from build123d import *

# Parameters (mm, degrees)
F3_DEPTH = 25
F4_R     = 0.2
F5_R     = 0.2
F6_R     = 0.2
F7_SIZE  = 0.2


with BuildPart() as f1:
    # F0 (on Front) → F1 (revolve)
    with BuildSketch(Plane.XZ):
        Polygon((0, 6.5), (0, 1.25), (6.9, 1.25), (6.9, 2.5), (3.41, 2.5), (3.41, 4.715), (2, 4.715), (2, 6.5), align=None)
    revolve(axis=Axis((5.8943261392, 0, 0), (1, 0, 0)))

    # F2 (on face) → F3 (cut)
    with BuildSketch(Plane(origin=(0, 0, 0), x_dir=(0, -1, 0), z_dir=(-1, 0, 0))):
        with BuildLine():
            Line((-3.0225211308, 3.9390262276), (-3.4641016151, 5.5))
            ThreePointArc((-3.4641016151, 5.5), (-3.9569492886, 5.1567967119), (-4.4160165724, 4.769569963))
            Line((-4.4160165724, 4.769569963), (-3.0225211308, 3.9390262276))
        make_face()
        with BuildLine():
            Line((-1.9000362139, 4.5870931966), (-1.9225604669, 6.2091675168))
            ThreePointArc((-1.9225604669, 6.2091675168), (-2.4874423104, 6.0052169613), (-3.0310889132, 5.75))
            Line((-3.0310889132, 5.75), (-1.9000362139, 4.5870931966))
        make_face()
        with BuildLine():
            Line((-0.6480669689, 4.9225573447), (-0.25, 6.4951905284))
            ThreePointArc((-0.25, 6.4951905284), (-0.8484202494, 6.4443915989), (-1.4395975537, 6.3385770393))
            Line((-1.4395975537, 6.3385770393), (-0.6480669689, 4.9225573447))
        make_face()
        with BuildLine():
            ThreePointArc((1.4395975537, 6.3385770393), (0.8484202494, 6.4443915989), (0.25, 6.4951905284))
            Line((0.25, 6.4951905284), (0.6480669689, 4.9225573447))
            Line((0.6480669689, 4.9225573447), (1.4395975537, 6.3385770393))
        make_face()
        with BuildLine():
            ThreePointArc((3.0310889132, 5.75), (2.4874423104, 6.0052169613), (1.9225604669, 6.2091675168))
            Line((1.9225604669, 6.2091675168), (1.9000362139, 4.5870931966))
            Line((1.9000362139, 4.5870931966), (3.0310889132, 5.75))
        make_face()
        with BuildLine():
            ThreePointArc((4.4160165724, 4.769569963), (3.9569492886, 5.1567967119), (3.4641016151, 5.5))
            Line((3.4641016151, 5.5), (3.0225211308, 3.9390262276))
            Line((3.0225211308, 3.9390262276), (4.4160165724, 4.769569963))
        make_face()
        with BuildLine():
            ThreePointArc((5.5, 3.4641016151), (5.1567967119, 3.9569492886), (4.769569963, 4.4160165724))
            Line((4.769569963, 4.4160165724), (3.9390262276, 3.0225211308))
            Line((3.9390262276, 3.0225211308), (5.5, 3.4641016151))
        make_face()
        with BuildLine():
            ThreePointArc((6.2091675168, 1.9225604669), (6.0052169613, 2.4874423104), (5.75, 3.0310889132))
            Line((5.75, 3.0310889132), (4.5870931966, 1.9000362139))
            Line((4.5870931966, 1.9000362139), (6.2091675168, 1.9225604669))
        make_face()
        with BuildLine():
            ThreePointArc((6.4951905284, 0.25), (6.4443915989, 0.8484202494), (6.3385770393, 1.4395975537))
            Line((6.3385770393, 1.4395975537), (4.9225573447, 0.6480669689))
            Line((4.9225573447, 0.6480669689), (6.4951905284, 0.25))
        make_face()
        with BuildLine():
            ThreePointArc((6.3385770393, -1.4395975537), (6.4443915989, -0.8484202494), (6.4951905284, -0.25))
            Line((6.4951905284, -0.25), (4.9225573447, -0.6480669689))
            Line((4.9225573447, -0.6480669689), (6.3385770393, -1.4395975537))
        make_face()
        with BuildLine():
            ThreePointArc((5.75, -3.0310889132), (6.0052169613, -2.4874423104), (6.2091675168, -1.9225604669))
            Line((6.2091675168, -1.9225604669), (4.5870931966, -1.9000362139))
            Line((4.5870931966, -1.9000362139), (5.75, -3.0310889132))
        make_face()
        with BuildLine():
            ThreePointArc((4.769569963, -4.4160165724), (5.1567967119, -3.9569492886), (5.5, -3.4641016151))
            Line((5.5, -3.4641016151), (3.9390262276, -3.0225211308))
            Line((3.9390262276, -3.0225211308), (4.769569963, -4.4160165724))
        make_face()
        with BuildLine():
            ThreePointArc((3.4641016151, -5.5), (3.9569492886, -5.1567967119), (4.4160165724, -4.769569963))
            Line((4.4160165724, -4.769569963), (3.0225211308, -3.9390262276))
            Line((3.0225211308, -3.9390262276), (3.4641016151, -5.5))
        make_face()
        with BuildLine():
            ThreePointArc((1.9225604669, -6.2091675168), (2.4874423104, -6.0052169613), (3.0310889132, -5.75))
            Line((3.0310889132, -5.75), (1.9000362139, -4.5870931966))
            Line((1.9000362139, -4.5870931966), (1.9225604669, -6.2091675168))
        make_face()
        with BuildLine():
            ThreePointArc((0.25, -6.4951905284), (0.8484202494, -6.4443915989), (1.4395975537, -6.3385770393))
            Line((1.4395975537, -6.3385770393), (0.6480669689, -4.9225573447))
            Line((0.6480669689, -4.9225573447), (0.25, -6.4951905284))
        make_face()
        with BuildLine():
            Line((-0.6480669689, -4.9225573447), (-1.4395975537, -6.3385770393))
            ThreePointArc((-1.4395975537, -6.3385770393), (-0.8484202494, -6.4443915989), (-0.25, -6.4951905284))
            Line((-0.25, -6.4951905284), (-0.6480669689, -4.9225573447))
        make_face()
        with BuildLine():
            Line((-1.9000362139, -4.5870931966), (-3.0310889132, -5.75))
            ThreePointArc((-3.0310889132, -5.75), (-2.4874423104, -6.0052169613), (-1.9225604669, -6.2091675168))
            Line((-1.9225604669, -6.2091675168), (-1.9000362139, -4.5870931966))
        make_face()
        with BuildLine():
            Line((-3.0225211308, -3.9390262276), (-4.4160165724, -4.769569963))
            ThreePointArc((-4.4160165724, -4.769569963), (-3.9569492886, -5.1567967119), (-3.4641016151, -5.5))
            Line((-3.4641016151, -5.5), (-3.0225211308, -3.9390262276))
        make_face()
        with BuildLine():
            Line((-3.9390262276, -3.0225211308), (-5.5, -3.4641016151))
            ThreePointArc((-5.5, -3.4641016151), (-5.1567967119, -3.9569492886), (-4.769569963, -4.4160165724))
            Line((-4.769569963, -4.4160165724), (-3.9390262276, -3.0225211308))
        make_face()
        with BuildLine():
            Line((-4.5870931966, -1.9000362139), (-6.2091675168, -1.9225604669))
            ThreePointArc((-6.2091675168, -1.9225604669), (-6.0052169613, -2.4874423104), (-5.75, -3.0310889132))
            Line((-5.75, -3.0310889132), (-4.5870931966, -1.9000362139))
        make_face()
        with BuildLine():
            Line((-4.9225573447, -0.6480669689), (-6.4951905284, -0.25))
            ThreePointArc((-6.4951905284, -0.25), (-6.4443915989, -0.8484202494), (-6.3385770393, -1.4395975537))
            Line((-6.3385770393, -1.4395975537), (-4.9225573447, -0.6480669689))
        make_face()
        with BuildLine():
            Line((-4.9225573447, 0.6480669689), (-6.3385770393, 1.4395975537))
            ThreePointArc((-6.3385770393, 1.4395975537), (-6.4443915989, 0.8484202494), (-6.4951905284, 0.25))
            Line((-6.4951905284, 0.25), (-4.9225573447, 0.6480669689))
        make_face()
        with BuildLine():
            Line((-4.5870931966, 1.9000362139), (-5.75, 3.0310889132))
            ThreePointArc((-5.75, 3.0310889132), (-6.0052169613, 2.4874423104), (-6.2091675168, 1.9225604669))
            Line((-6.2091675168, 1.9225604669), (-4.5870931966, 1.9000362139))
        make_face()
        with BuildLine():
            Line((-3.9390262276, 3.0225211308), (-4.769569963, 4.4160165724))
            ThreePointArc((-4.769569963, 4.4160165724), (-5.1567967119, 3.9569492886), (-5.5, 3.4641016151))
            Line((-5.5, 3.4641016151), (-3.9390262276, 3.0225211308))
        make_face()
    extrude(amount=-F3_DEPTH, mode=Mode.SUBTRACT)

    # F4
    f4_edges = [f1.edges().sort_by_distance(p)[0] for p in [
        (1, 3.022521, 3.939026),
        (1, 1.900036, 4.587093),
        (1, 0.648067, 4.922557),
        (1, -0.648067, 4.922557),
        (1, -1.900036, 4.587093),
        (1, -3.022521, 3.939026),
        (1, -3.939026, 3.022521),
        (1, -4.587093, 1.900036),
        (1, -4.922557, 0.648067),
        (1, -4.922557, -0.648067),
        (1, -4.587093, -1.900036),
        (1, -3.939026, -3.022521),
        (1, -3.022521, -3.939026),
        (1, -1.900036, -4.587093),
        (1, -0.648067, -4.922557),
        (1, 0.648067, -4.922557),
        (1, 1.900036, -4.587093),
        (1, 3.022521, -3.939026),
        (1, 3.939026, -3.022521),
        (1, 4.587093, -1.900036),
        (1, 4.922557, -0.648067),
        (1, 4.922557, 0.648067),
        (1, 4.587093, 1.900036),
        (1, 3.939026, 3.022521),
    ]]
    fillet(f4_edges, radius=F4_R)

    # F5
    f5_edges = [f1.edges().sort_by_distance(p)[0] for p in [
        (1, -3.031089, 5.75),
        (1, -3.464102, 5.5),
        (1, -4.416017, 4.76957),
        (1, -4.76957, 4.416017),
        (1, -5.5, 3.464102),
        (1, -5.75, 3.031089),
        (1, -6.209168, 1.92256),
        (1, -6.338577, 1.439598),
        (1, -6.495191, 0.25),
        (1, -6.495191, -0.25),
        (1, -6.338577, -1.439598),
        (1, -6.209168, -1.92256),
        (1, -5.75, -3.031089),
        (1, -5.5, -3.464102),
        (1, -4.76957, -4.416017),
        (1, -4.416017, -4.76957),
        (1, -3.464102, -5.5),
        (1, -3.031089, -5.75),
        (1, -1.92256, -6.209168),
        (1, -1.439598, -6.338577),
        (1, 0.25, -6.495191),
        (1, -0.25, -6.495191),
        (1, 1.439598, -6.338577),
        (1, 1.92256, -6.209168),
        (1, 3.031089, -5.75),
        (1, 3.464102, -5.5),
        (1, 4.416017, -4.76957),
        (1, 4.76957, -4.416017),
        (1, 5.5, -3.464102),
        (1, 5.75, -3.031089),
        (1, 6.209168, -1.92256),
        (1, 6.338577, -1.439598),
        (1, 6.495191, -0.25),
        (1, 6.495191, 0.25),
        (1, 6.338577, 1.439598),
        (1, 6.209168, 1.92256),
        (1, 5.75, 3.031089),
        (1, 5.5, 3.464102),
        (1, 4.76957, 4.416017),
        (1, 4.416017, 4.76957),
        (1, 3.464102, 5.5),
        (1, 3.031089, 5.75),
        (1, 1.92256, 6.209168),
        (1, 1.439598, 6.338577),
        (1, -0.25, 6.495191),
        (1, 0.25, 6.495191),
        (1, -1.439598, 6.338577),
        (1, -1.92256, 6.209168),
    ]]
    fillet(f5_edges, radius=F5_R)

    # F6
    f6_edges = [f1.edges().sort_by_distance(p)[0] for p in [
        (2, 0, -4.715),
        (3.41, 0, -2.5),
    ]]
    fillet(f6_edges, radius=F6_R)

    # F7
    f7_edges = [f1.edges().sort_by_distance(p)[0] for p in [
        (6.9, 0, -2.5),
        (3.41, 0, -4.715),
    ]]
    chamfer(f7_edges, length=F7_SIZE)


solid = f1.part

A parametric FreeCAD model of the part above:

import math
import FreeCAD as App
import Part
import Sketcher
from FreeCAD import Vector


def edges_at(feature, points):
    """Names of the edges that pass closest to the given points."""
    edges = feature.Shape.Edges
    near = lambda p: min(range(len(edges)), key=lambda i: edges[i].distToShape(Part.Vertex(*p))[0])
    return sorted({f"Edge{near(p) + 1}" for p in points})


def add_polygon(sketch, points):
    """Adds a closed chain of lines whose ends are joined by coincident constraints."""
    first, n = sketch.GeometryCount, len(points)
    for a, b in zip(points, points[1:] + points[:1]):
        sketch.addGeometry(Part.LineSegment(App.Vector(*a, 0), App.Vector(*b, 0)), False)
    for i in range(n):
        sketch.addConstraint(Sketcher.Constraint("Coincident", first + i, 2, first + (i + 1) % n, 1))

doc = App.newDocument("Part")
body = doc.addObject("PartDesign::Body", "Body")

# Sketch on XZ plane
sketch1 = body.newObject("Sketcher::SketchObject", "Sketch")
sketch1.AttachmentSupport = (doc.getObject("XZ_Plane"), [""])
sketch1.MapMode = "FlatFace"
add_polygon(sketch1, [(0, 6.5), (0, 1.25), (6.9, 1.25), (6.9, 2.5), (3.41, 2.5), (3.41, 4.715), (2, 4.715), (2, 6.5)])  # lines 0-7
sketch1.addConstraint([
    Sketcher.Constraint("Vertical", 0),
    Sketcher.Constraint("Horizontal", 1),
    Sketcher.Constraint("Vertical", 2),
    Sketcher.Constraint("Horizontal", 3),
    Sketcher.Constraint("Vertical", 4),
    Sketcher.Constraint("Horizontal", 5),
    Sketcher.Constraint("Vertical", 6),
    Sketcher.Constraint("Horizontal", 7),
    Sketcher.Constraint("PointOnObject", 0, 2, -2),
    Sketcher.Constraint("DistanceX", 7, 2, 7, 1, 2.0),
    Sketcher.Constraint("DistanceX", 1, 1, 1, 2, 6.9),
    Sketcher.Constraint("DistanceY", 3, 2, 6, 2, 4.0),
    Sketcher.Constraint("DistanceX", 3, 2, 3, 1, 3.49),
    Sketcher.Constraint("DistanceY", 0, 2, 0, 1, 5.25),
    Sketcher.Constraint("DistanceY", -1, 1, 2, 2, 2.5),
    Sketcher.Constraint("DistanceY", 4, 1, 4, 2, 2.215),
])
revolution = body.newObject("PartDesign::Revolution", "Revolution")
revolution.Profile = sketch1
revolution.ReferenceAxis = (sketch1, ["H_Axis"])
revolution.Angle = 360

# Sketch on YZ plane
sketch2 = body.newObject("Sketcher::SketchObject", "Sketch001")
sketch2.AttachmentSupport = (doc.getObject("YZ_Plane"), [""])
sketch2.MapMode = "FlatFace"
sketch2.addGeometry([
    Part.LineSegment(Vector(3.022521, 3.939026, 0), Vector(3.464102, 5.5, 0)),  # 0
    Part.ArcOfCircle(Part.Circle(Vector(0, 0, 0), Vector(0, 0, 1), 6.5), math.radians(47.204227), math.radians(57.795773)),  # 1
    Part.LineSegment(Vector(4.416017, 4.76957, 0), Vector(3.022521, 3.939026, 0)),  # 2
    Part.LineSegment(Vector(1.900036, 4.587093, 0), Vector(1.92256, 6.209168, 0)),  # 3
    Part.ArcOfCircle(Part.Circle(Vector(0, 0, 0), Vector(0, 0, 1), 6.5), math.radians(62.204228), math.radians(72.795772)),  # 4
    Part.LineSegment(Vector(3.031089, 5.75, 0), Vector(1.900036, 4.587093, 0)),  # 5
    Part.LineSegment(Vector(0.648067, 4.922557, 0), Vector(0.25, 6.495191, 0)),  # 6
    Part.ArcOfCircle(Part.Circle(Vector(0, 0, 0), Vector(0, 0, 1), 6.5), math.radians(77.204228), math.radians(87.795772)),  # 7
    Part.LineSegment(Vector(1.439598, 6.338577, 0), Vector(0.648067, 4.922557, 0)),  # 8
    Part.ArcOfCircle(Part.Circle(Vector(0, 0, 0), Vector(0, 0, 1), 6.5), math.radians(92.204228), math.radians(102.795772)),  # 9
    Part.LineSegment(Vector(-0.25, 6.495191, 0), Vector(-0.648067, 4.922557, 0)),  # 10
    Part.LineSegment(Vector(-0.648067, 4.922557, 0), Vector(-1.439598, 6.338577, 0)),  # 11
    Part.ArcOfCircle(Part.Circle(Vector(0, 0, 0), Vector(0, 0, 1), 6.5), math.radians(107.204228), math.radians(117.795772)),  # 12
    Part.LineSegment(Vector(-1.92256, 6.209168, 0), Vector(-1.900036, 4.587093, 0)),  # 13
    Part.LineSegment(Vector(-1.900036, 4.587093, 0), Vector(-3.031089, 5.75, 0)),  # 14
    Part.ArcOfCircle(Part.Circle(Vector(0, 0, 0), Vector(0, 0, 1), 6.5), math.radians(122.204227), math.radians(132.795773)),  # 15
    Part.LineSegment(Vector(-3.464102, 5.5, 0), Vector(-3.022521, 3.939026, 0)),  # 16
    Part.LineSegment(Vector(-3.022521, 3.939026, 0), Vector(-4.416017, 4.76957, 0)),  # 17
    Part.ArcOfCircle(Part.Circle(Vector(0, 0, 0), Vector(0, 0, 1), 6.5), math.radians(137.204227), math.radians(147.795773)),  # 18
    Part.LineSegment(Vector(-4.76957, 4.416017, 0), Vector(-3.939026, 3.022521, 0)),  # 19
    Part.LineSegment(Vector(-3.939026, 3.022521, 0), Vector(-5.5, 3.464102, 0)),  # 20
    Part.ArcOfCircle(Part.Circle(Vector(0, 0, 0), Vector(0, 0, 1), 6.5), math.radians(152.204228), math.radians(162.795772)),  # 21
    Part.LineSegment(Vector(-5.75, 3.031089, 0), Vector(-4.587093, 1.900036, 0)),  # 22
    Part.LineSegment(Vector(-4.587093, 1.900036, 0), Vector(-6.209168, 1.92256, 0)),  # 23
    Part.ArcOfCircle(Part.Circle(Vector(0, 0, 0), Vector(0, 0, 1), 6.5), math.radians(167.204228), math.radians(177.795772)),  # 24
    Part.LineSegment(Vector(-6.338577, 1.439598, 0), Vector(-4.922557, 0.648067, 0)),  # 25
    Part.LineSegment(Vector(-4.922557, 0.648067, 0), Vector(-6.495191, 0.25, 0)),  # 26
    Part.ArcOfCircle(Part.Circle(Vector(0, 0, 0), Vector(0, 0, 1), 6.5), math.radians(-177.795772), math.radians(-167.204228)),  # 27
    Part.LineSegment(Vector(-6.495191, -0.25, 0), Vector(-4.922557, -0.648067, 0)),  # 28
    Part.LineSegment(Vector(-4.922557, -0.648067, 0), Vector(-6.338577, -1.439598, 0)),  # 29
    Part.ArcOfCircle(Part.Circle(Vector(0, 0, 0), Vector(0, 0, 1), 6.5), math.radians(-162.795772), math.radians(-152.204228)),  # 30
    Part.LineSegment(Vector(-6.209168, -1.92256, 0), Vector(-4.587093, -1.900036, 0)),  # 31
    Part.LineSegment(Vector(-4.587093, -1.900036, 0), Vector(-5.75, -3.031089, 0)),  # 32
    Part.ArcOfCircle(Part.Circle(Vector(0, 0, 0), Vector(0, 0, 1), 6.5), math.radians(-147.795773), math.radians(-137.204227)),  # 33
    Part.LineSegment(Vector(-5.5, -3.464102, 0), Vector(-3.939026, -3.022521, 0)),  # 34
    Part.LineSegment(Vector(-3.939026, -3.022521, 0), Vector(-4.76957, -4.416017, 0)),  # 35
    Part.ArcOfCircle(Part.Circle(Vector(0, 0, 0), Vector(0, 0, 1), 6.5), math.radians(-132.795773), math.radians(-122.204227)),  # 36
    Part.LineSegment(Vector(-4.416017, -4.76957, 0), Vector(-3.022521, -3.939026, 0)),  # 37
    Part.LineSegment(Vector(-3.022521, -3.939026, 0), Vector(-3.464102, -5.5, 0)),  # 38
    Part.ArcOfCircle(Part.Circle(Vector(0, 0, 0), Vector(0, 0, 1), 6.5), math.radians(-117.795772), math.radians(-107.204228)),  # 39
    Part.LineSegment(Vector(-3.031089, -5.75, 0), Vector(-1.900036, -4.587093, 0)),  # 40
    Part.LineSegment(Vector(-1.900036, -4.587093, 0), Vector(-1.92256, -6.209168, 0)),  # 41
    Part.ArcOfCircle(Part.Circle(Vector(0, 0, 0), Vector(0, 0, 1), 6.5), math.radians(-102.795772), math.radians(-92.204228)),  # 42
    Part.LineSegment(Vector(-1.439598, -6.338577, 0), Vector(-0.648067, -4.922557, 0)),  # 43
    Part.LineSegment(Vector(-0.648067, -4.922557, 0), Vector(-0.25, -6.495191, 0)),  # 44
    Part.LineSegment(Vector(0.648067, -4.922557, 0), Vector(1.439598, -6.338577, 0)),  # 45
    Part.ArcOfCircle(Part.Circle(Vector(0, 0, 0), Vector(0, 0, 1), 6.5), math.radians(-87.795772), math.radians(-77.204228)),  # 46
    Part.LineSegment(Vector(0.25, -6.495191, 0), Vector(0.648067, -4.922557, 0)),  # 47
    Part.LineSegment(Vector(1.900036, -4.587093, 0), Vector(3.031089, -5.75, 0)),  # 48
    Part.ArcOfCircle(Part.Circle(Vector(0, 0, 0), Vector(0, 0, 1), 6.5), math.radians(-72.795772), math.radians(-62.204228)),  # 49
    Part.LineSegment(Vector(1.92256, -6.209168, 0), Vector(1.900036, -4.587093, 0)),  # 50
    Part.LineSegment(Vector(3.022521, -3.939026, 0), Vector(4.416017, -4.76957, 0)),  # 51
    Part.ArcOfCircle(Part.Circle(Vector(0, 0, 0), Vector(0, 0, 1), 6.5), math.radians(-57.795773), math.radians(-47.204227)),  # 52
    Part.LineSegment(Vector(3.464102, -5.5, 0), Vector(3.022521, -3.939026, 0)),  # 53
    Part.LineSegment(Vector(3.939026, -3.022521, 0), Vector(5.5, -3.464102, 0)),  # 54
    Part.ArcOfCircle(Part.Circle(Vector(0, 0, 0), Vector(0, 0, 1), 6.5), math.radians(-42.795773), math.radians(-32.204227)),  # 55
    Part.LineSegment(Vector(4.76957, -4.416017, 0), Vector(3.939026, -3.022521, 0)),  # 56
    Part.LineSegment(Vector(4.587093, -1.900036, 0), Vector(6.209168, -1.92256, 0)),  # 57
    Part.ArcOfCircle(Part.Circle(Vector(0, 0, 0), Vector(0, 0, 1), 6.5), math.radians(-27.795772), math.radians(-17.204228)),  # 58
    Part.LineSegment(Vector(5.75, -3.031089, 0), Vector(4.587093, -1.900036, 0)),  # 59
    Part.LineSegment(Vector(4.922557, -0.648067, 0), Vector(6.495191, -0.25, 0)),  # 60
    Part.ArcOfCircle(Part.Circle(Vector(0, 0, 0), Vector(0, 0, 1), 6.5), math.radians(-12.795772), math.radians(-2.204228)),  # 61
    Part.LineSegment(Vector(6.338577, -1.439598, 0), Vector(4.922557, -0.648067, 0)),  # 62
    Part.LineSegment(Vector(4.922557, 0.648067, 0), Vector(6.338577, 1.439598, 0)),  # 63
    Part.ArcOfCircle(Part.Circle(Vector(0, 0, 0), Vector(0, 0, 1), 6.5), math.radians(2.204228), math.radians(12.795772)),  # 64
    Part.LineSegment(Vector(6.495191, 0.25, 0), Vector(4.922557, 0.648067, 0)),  # 65
    Part.LineSegment(Vector(4.587093, 1.900036, 0), Vector(5.75, 3.031089, 0)),  # 66
    Part.ArcOfCircle(Part.Circle(Vector(0, 0, 0), Vector(0, 0, 1), 6.5), math.radians(17.204228), math.radians(27.795772)),  # 67
    Part.LineSegment(Vector(6.209168, 1.92256, 0), Vector(4.587093, 1.900036, 0)),  # 68
    Part.LineSegment(Vector(3.939026, 3.022521, 0), Vector(4.76957, 4.416017, 0)),  # 69
    Part.ArcOfCircle(Part.Circle(Vector(0, 0, 0), Vector(0, 0, 1), 6.5), math.radians(32.204227), math.radians(42.795773)),  # 70
    Part.LineSegment(Vector(5.5, 3.464102, 0), Vector(3.939026, 3.022521, 0)),  # 71
], False)
sketch2.addConstraint([
    Sketcher.Constraint("Coincident", 0, 2, 1, 2),
    Sketcher.Constraint("Coincident", 1, 1, 2, 1),
    Sketcher.Constraint("Coincident", 2, 2, 0, 1),
    Sketcher.Constraint("Coincident", 3, 2, 4, 2),
    Sketcher.Constraint("Coincident", 4, 1, 5, 1),
    Sketcher.Constraint("Coincident", 5, 2, 3, 1),
    Sketcher.Constraint("Coincident", 6, 2, 7, 2),
    Sketcher.Constraint("Coincident", 7, 1, 8, 1),
    Sketcher.Constraint("Coincident", 8, 2, 6, 1),
    Sketcher.Constraint("Coincident", 9, 1, 10, 1),
    Sketcher.Constraint("Coincident", 10, 2, 11, 1),
    Sketcher.Constraint("Coincident", 11, 2, 9, 2),
    Sketcher.Constraint("Coincident", 12, 1, 13, 1),
    Sketcher.Constraint("Coincident", 13, 2, 14, 1),
    Sketcher.Constraint("Coincident", 14, 2, 12, 2),
    Sketcher.Constraint("Coincident", 15, 1, 16, 1),
    Sketcher.Constraint("Coincident", 16, 2, 17, 1),
    Sketcher.Constraint("Coincident", 17, 2, 15, 2),
    Sketcher.Constraint("Coincident", 18, 1, 19, 1),
    Sketcher.Constraint("Coincident", 19, 2, 20, 1),
    Sketcher.Constraint("Coincident", 20, 2, 18, 2),
    Sketcher.Constraint("Coincident", 21, 1, 22, 1),
    Sketcher.Constraint("Coincident", 22, 2, 23, 1),
    Sketcher.Constraint("Coincident", 23, 2, 21, 2),
    Sketcher.Constraint("Coincident", 24, 1, 25, 1),
    Sketcher.Constraint("Coincident", 25, 2, 26, 1),
    Sketcher.Constraint("Coincident", 26, 2, 24, 2),
    Sketcher.Constraint("Coincident", 27, 1, 28, 1),
    Sketcher.Constraint("Coincident", 28, 2, 29, 1),
    Sketcher.Constraint("Coincident", 29, 2, 27, 2),
    Sketcher.Constraint("Coincident", 30, 1, 31, 1),
    Sketcher.Constraint("Coincident", 31, 2, 32, 1),
    Sketcher.Constraint("Coincident", 32, 2, 30, 2),
    Sketcher.Constraint("Coincident", 33, 1, 34, 1),
    Sketcher.Constraint("Coincident", 34, 2, 35, 1),
    Sketcher.Constraint("Coincident", 35, 2, 33, 2),
    Sketcher.Constraint("Coincident", 36, 1, 37, 1),
    Sketcher.Constraint("Coincident", 37, 2, 38, 1),
    Sketcher.Constraint("Coincident", 38, 2, 36, 2),
    Sketcher.Constraint("Coincident", 39, 1, 40, 1),
    Sketcher.Constraint("Coincident", 40, 2, 41, 1),
    Sketcher.Constraint("Coincident", 41, 2, 39, 2),
    Sketcher.Constraint("Coincident", 42, 1, 43, 1),
    Sketcher.Constraint("Coincident", 43, 2, 44, 1),
    Sketcher.Constraint("Coincident", 44, 2, 42, 2),
    Sketcher.Constraint("Coincident", 45, 2, 46, 2),
    Sketcher.Constraint("Coincident", 46, 1, 47, 1),
    Sketcher.Constraint("Coincident", 47, 2, 45, 1),
    Sketcher.Constraint("Coincident", 48, 2, 49, 2),
    Sketcher.Constraint("Coincident", 49, 1, 50, 1),
    Sketcher.Constraint("Coincident", 50, 2, 48, 1),
    Sketcher.Constraint("Coincident", 51, 2, 52, 2),
    Sketcher.Constraint("Coincident", 52, 1, 53, 1),
    Sketcher.Constraint("Coincident", 53, 2, 51, 1),
    Sketcher.Constraint("Coincident", 54, 2, 55, 2),
    Sketcher.Constraint("Coincident", 55, 1, 56, 1),
    Sketcher.Constraint("Coincident", 56, 2, 54, 1),
    Sketcher.Constraint("Coincident", 57, 2, 58, 2),
    Sketcher.Constraint("Coincident", 58, 1, 59, 1),
    Sketcher.Constraint("Coincident", 59, 2, 57, 1),
    Sketcher.Constraint("Coincident", 60, 2, 61, 2),
    Sketcher.Constraint("Coincident", 61, 1, 62, 1),
    Sketcher.Constraint("Coincident", 62, 2, 60, 1),
    Sketcher.Constraint("Coincident", 63, 2, 64, 2),
    Sketcher.Constraint("Coincident", 64, 1, 65, 1),
    Sketcher.Constraint("Coincident", 65, 2, 63, 1),
    Sketcher.Constraint("Coincident", 66, 2, 67, 2),
    Sketcher.Constraint("Coincident", 67, 1, 68, 1),
    Sketcher.Constraint("Coincident", 68, 2, 66, 1),
    Sketcher.Constraint("Coincident", 69, 2, 70, 2),
    Sketcher.Constraint("Coincident", 70, 1, 71, 1),
    Sketcher.Constraint("Coincident", 71, 2, 69, 1),
    Sketcher.Constraint("Coincident", 1, 3, -1, 1),
    Sketcher.Constraint("Coincident", 4, 3, -1, 1),
    Sketcher.Constraint("Coincident", 7, 3, -1, 1),
    Sketcher.Constraint("Coincident", 9, 3, -1, 1),
    Sketcher.Constraint("Coincident", 12, 3, -1, 1),
    Sketcher.Constraint("Coincident", 15, 3, -1, 1),
    Sketcher.Constraint("Coincident", 18, 3, -1, 1),
    Sketcher.Constraint("Coincident", 21, 3, -1, 1),
    Sketcher.Constraint("Coincident", 24, 3, -1, 1),
    Sketcher.Constraint("Coincident", 27, 3, -1, 1),
    Sketcher.Constraint("Coincident", 30, 3, -1, 1),
    Sketcher.Constraint("Coincident", 33, 3, -1, 1),
    Sketcher.Constraint("Coincident", 36, 3, -1, 1),
    Sketcher.Constraint("Coincident", 39, 3, -1, 1),
    Sketcher.Constraint("Coincident", 42, 3, -1, 1),
    Sketcher.Constraint("Coincident", 46, 3, -1, 1),
    Sketcher.Constraint("Coincident", 49, 3, -1, 1),
    Sketcher.Constraint("Coincident", 52, 3, -1, 1),
    Sketcher.Constraint("Coincident", 55, 3, -1, 1),
    Sketcher.Constraint("Coincident", 58, 3, -1, 1),
    Sketcher.Constraint("Coincident", 61, 3, -1, 1),
    Sketcher.Constraint("Coincident", 64, 3, -1, 1),
    Sketcher.Constraint("Coincident", 67, 3, -1, 1),
    Sketcher.Constraint("Coincident", 70, 3, -1, 1),
    Sketcher.Constraint("Equal", 1, 4),
    Sketcher.Constraint("Equal", 4, 7),
    Sketcher.Constraint("Equal", 7, 9),
    Sketcher.Constraint("Equal", 9, 12),
    Sketcher.Constraint("Equal", 12, 15),
    Sketcher.Constraint("Equal", 15, 18),
    Sketcher.Constraint("Equal", 18, 21),
    Sketcher.Constraint("Equal", 21, 24),
    Sketcher.Constraint("Equal", 24, 27),
    Sketcher.Constraint("Equal", 27, 30),
    Sketcher.Constraint("Equal", 30, 33),
    Sketcher.Constraint("Equal", 33, 36),
    Sketcher.Constraint("Equal", 36, 39),
    Sketcher.Constraint("Equal", 39, 42),
    Sketcher.Constraint("Equal", 42, 46),
    Sketcher.Constraint("Equal", 46, 49),
    Sketcher.Constraint("Equal", 49, 52),
    Sketcher.Constraint("Equal", 52, 55),
    Sketcher.Constraint("Equal", 55, 58),
    Sketcher.Constraint("Equal", 58, 61),
    Sketcher.Constraint("Equal", 61, 64),
    Sketcher.Constraint("Equal", 64, 67),
    Sketcher.Constraint("Equal", 67, 70),
    Sketcher.Constraint("Symmetric", 2, 2, 37, 2, -1, 1),
    Sketcher.Constraint("Symmetric", 5, 2, 40, 2, -1, 1),
    Sketcher.Constraint("Symmetric", 8, 2, 43, 2, -1, 1),
    Sketcher.Constraint("Symmetric", 10, 2, 47, 2, -1, 1),
    Sketcher.Constraint("Symmetric", 13, 2, 50, 2, -1, 1),
    Sketcher.Constraint("Symmetric", 16, 2, 53, 2, -1, 1),
    Sketcher.Constraint("Symmetric", 19, 2, 56, 2, -1, 1),
    Sketcher.Constraint("Symmetric", 22, 2, 59, 2, -1, 1),
    Sketcher.Constraint("Symmetric", 25, 2, 62, 2, -1, 1),
    Sketcher.Constraint("Symmetric", 28, 2, 65, 2, -1, 1),
    Sketcher.Constraint("Symmetric", 31, 2, 68, 2, -1, 1),
    Sketcher.Constraint("Symmetric", 34, 2, 71, 2, -1, 1),
    Sketcher.Constraint("Symmetric", 8, 2, 10, 2, -2),
    Sketcher.Constraint("Symmetric", 5, 2, 13, 2, -2),
    Sketcher.Constraint("Symmetric", 2, 2, 16, 2, -2),
    Sketcher.Constraint("Symmetric", 34, 2, 56, 2, -2),
    Sketcher.Constraint("Symmetric", 31, 2, 59, 2, -2),
    Sketcher.Constraint("Symmetric", 28, 2, 62, 2, -2),
    Sketcher.Constraint("Perpendicular", 2, 19),
    Sketcher.Constraint("Perpendicular", 0, 20),
    Sketcher.Constraint("Perpendicular", 5, 22),
    Sketcher.Constraint("Perpendicular", 3, 23),
    Sketcher.Constraint("Perpendicular", 8, 25),
    Sketcher.Constraint("Perpendicular", 6, 26),
    Sketcher.Constraint("Perpendicular", 10, 28),
    Sketcher.Constraint("Perpendicular", 11, 29),
    Sketcher.Constraint("Perpendicular", 13, 31),
    Sketcher.Constraint("Perpendicular", 14, 32),
    Sketcher.Constraint("Perpendicular", 16, 34),
    Sketcher.Constraint("Perpendicular", 17, 35),
    Sketcher.Constraint("Perpendicular", 19, 37),
    Sketcher.Constraint("Perpendicular", 20, 38),
    Sketcher.Constraint("Perpendicular", 22, 40),
    Sketcher.Constraint("Perpendicular", 23, 41),
    Sketcher.Constraint("Perpendicular", 25, 43),
    Sketcher.Constraint("Perpendicular", 26, 44),
    Sketcher.Constraint("Perpendicular", 29, 45),
    Sketcher.Constraint("Perpendicular", 28, 47),
    Sketcher.Constraint("Perpendicular", 32, 48),
    Sketcher.Constraint("Perpendicular", 31, 50),
    Sketcher.Constraint("Perpendicular", 35, 51),
    Sketcher.Constraint("Perpendicular", 34, 53),
    Sketcher.Constraint("Perpendicular", 38, 54),
    Sketcher.Constraint("Perpendicular", 37, 56),
    Sketcher.Constraint("Perpendicular", 41, 57),
    Sketcher.Constraint("Perpendicular", 40, 59),
    Sketcher.Constraint("Perpendicular", 44, 60),
    Sketcher.Constraint("Perpendicular", 43, 62),
    Sketcher.Constraint("Perpendicular", 45, 63),
    Sketcher.Constraint("Perpendicular", 47, 65),
    Sketcher.Constraint("Perpendicular", 48, 66),
    Sketcher.Constraint("Perpendicular", 50, 68),
    Sketcher.Constraint("Perpendicular", 51, 69),
    Sketcher.Constraint("Perpendicular", 53, 71),
    Sketcher.Constraint("Horizontal", 6, 2, 9, 1),
    Sketcher.Constraint("Horizontal", 7, 1, 11, 2),
    Sketcher.Constraint("Horizontal", 3, 2, 12, 1),
    Sketcher.Constraint("Horizontal", 4, 1, 14, 2),
    Sketcher.Constraint("Horizontal", 0, 2, 15, 1),
    Sketcher.Constraint("Horizontal", 1, 1, 17, 2),
    Sketcher.Constraint("Equal", 0, 2),
    Sketcher.Constraint("Equal", 2, 3),
    Sketcher.Constraint("Equal", 3, 5),
    Sketcher.Constraint("Equal", 5, 6),
    Sketcher.Constraint("Equal", 6, 8),
    Sketcher.Constraint("Equal", 17, 19),
    Sketcher.Constraint("Equal", 19, 20),
    Sketcher.Constraint("Equal", 20, 22),
    Sketcher.Constraint("Equal", 22, 23),
    Sketcher.Constraint("Equal", 23, 25),
    Sketcher.Constraint("Equal", 25, 26),
    Sketcher.Constraint("Radius", 1, 6.5),
    Sketcher.Constraint("DistanceY", -1, 1, 0, 2, 5.5),
    Sketcher.Constraint("DistanceY", -1, 1, 4, 1, 5.75),
    Sketcher.Constraint("DistanceX", -1, 1, 6, 2, 0.25),
    Sketcher.Constraint("Distance", 0, 1.622231),
    Sketcher.Constraint("DistanceY", -1, 1, 1, 1, 4.76957),
    Sketcher.Constraint("DistanceX", -1, 1, 3, 2, 1.92256),
    Sketcher.Constraint("DistanceX", -1, 1, 7, 1, 1.439598),
])
pocket1 = body.newObject("PartDesign::Pocket", "Pocket")
pocket1.Profile = sketch2
pocket1.Length = 25
pocket1.Reversed = True
doc.recompute()

fillet = body.newObject("PartDesign::Fillet", "Fillet")
fillet.Base = (pocket1, edges_at(pocket1, [
    (1, 3.023, 3.939),
    (1, 1.9, 4.587),
    (1, 0.648, 4.923),
    (1, -0.648, 4.923),
    (1, -1.9, 4.587),
    (1, -3.023, 3.939),
    (1, -3.939, 3.023),
    (1, -4.587, 1.9),
    (1, -4.923, 0.648),
    (1, -4.923, -0.648),
    (1, -4.587, -1.9),
    (1, -3.939, -3.023),
    (1, -3.023, -3.939),
    (1, -1.9, -4.587),
    (1, -0.648, -4.923),
    (1, 0.648, -4.923),
    (1, 1.9, -4.587),
    (1, 3.023, -3.939),
    (1, 3.939, -3.023),
    (1, 4.587, -1.9),
    (1, 4.923, -0.648),
    (1, 4.923, 0.648),
    (1, 4.587, 1.9),
    (1, 3.939, 3.023),
]))
fillet.Radius = 0.2
doc.recompute()

fillet2 = body.newObject("PartDesign::Fillet", "Fillet001")
fillet2.Base = (fillet, edges_at(fillet, [
    (1, -3.031, 5.75),
    (1, -3.464, 5.5),
    (1, -4.416, 4.77),
    (1, -4.77, 4.416),
    (1, -5.5, 3.464),
    (1, -5.75, 3.031),
    (1, -6.209, 1.923),
    (1, -6.339, 1.44),
    (1, -6.495, 0.25),
    (1, -6.495, -0.25),
    (1, -6.339, -1.44),
    (1, -6.209, -1.923),
    (1, -5.75, -3.031),
    (1, -5.5, -3.464),
    (1, -4.77, -4.416),
    (1, -4.416, -4.77),
    (1, -3.464, -5.5),
    (1, -3.031, -5.75),
    (1, -1.923, -6.209),
    (1, -1.44, -6.339),
    (1, 0.25, -6.495),
    (1, -0.25, -6.495),
    (1, 1.44, -6.339),
    (1, 1.923, -6.209),
    (1, 3.031, -5.75),
    (1, 3.464, -5.5),
    (1, 4.416, -4.77),
    (1, 4.77, -4.416),
    (1, 5.5, -3.464),
    (1, 5.75, -3.031),
    (1, 6.209, -1.923),
    (1, 6.339, -1.44),
    (1, 6.495, -0.25),
    (1, 6.495, 0.25),
    (1, 6.339, 1.44),
    (1, 6.209, 1.923),
    (1, 5.75, 3.031),
    (1, 5.5, 3.464),
    (1, 4.77, 4.416),
    (1, 4.416, 4.77),
    (1, 3.464, 5.5),
    (1, 3.031, 5.75),
    (1, 1.923, 6.209),
    (1, 1.44, 6.339),
    (1, -0.25, 6.495),
    (1, 0.25, 6.495),
    (1, -1.44, 6.339),
    (1, -1.923, 6.209),
]))
fillet2.Radius = 0.2
doc.recompute()

fillet3 = body.newObject("PartDesign::Fillet", "Fillet002")
fillet3.Base = (fillet2, edges_at(fillet2, [(2, 0, -4.715), (3.41, 0, -2.5)]))
fillet3.Radius = 0.2
doc.recompute()

chamfer = body.newObject("PartDesign::Chamfer", "Chamfer")
chamfer.Base = (fillet3, edges_at(fillet3, [(6.9, 0, -2.5), (3.41, 0, -4.715)]))
chamfer.Size = 0.2

doc.recompute()
